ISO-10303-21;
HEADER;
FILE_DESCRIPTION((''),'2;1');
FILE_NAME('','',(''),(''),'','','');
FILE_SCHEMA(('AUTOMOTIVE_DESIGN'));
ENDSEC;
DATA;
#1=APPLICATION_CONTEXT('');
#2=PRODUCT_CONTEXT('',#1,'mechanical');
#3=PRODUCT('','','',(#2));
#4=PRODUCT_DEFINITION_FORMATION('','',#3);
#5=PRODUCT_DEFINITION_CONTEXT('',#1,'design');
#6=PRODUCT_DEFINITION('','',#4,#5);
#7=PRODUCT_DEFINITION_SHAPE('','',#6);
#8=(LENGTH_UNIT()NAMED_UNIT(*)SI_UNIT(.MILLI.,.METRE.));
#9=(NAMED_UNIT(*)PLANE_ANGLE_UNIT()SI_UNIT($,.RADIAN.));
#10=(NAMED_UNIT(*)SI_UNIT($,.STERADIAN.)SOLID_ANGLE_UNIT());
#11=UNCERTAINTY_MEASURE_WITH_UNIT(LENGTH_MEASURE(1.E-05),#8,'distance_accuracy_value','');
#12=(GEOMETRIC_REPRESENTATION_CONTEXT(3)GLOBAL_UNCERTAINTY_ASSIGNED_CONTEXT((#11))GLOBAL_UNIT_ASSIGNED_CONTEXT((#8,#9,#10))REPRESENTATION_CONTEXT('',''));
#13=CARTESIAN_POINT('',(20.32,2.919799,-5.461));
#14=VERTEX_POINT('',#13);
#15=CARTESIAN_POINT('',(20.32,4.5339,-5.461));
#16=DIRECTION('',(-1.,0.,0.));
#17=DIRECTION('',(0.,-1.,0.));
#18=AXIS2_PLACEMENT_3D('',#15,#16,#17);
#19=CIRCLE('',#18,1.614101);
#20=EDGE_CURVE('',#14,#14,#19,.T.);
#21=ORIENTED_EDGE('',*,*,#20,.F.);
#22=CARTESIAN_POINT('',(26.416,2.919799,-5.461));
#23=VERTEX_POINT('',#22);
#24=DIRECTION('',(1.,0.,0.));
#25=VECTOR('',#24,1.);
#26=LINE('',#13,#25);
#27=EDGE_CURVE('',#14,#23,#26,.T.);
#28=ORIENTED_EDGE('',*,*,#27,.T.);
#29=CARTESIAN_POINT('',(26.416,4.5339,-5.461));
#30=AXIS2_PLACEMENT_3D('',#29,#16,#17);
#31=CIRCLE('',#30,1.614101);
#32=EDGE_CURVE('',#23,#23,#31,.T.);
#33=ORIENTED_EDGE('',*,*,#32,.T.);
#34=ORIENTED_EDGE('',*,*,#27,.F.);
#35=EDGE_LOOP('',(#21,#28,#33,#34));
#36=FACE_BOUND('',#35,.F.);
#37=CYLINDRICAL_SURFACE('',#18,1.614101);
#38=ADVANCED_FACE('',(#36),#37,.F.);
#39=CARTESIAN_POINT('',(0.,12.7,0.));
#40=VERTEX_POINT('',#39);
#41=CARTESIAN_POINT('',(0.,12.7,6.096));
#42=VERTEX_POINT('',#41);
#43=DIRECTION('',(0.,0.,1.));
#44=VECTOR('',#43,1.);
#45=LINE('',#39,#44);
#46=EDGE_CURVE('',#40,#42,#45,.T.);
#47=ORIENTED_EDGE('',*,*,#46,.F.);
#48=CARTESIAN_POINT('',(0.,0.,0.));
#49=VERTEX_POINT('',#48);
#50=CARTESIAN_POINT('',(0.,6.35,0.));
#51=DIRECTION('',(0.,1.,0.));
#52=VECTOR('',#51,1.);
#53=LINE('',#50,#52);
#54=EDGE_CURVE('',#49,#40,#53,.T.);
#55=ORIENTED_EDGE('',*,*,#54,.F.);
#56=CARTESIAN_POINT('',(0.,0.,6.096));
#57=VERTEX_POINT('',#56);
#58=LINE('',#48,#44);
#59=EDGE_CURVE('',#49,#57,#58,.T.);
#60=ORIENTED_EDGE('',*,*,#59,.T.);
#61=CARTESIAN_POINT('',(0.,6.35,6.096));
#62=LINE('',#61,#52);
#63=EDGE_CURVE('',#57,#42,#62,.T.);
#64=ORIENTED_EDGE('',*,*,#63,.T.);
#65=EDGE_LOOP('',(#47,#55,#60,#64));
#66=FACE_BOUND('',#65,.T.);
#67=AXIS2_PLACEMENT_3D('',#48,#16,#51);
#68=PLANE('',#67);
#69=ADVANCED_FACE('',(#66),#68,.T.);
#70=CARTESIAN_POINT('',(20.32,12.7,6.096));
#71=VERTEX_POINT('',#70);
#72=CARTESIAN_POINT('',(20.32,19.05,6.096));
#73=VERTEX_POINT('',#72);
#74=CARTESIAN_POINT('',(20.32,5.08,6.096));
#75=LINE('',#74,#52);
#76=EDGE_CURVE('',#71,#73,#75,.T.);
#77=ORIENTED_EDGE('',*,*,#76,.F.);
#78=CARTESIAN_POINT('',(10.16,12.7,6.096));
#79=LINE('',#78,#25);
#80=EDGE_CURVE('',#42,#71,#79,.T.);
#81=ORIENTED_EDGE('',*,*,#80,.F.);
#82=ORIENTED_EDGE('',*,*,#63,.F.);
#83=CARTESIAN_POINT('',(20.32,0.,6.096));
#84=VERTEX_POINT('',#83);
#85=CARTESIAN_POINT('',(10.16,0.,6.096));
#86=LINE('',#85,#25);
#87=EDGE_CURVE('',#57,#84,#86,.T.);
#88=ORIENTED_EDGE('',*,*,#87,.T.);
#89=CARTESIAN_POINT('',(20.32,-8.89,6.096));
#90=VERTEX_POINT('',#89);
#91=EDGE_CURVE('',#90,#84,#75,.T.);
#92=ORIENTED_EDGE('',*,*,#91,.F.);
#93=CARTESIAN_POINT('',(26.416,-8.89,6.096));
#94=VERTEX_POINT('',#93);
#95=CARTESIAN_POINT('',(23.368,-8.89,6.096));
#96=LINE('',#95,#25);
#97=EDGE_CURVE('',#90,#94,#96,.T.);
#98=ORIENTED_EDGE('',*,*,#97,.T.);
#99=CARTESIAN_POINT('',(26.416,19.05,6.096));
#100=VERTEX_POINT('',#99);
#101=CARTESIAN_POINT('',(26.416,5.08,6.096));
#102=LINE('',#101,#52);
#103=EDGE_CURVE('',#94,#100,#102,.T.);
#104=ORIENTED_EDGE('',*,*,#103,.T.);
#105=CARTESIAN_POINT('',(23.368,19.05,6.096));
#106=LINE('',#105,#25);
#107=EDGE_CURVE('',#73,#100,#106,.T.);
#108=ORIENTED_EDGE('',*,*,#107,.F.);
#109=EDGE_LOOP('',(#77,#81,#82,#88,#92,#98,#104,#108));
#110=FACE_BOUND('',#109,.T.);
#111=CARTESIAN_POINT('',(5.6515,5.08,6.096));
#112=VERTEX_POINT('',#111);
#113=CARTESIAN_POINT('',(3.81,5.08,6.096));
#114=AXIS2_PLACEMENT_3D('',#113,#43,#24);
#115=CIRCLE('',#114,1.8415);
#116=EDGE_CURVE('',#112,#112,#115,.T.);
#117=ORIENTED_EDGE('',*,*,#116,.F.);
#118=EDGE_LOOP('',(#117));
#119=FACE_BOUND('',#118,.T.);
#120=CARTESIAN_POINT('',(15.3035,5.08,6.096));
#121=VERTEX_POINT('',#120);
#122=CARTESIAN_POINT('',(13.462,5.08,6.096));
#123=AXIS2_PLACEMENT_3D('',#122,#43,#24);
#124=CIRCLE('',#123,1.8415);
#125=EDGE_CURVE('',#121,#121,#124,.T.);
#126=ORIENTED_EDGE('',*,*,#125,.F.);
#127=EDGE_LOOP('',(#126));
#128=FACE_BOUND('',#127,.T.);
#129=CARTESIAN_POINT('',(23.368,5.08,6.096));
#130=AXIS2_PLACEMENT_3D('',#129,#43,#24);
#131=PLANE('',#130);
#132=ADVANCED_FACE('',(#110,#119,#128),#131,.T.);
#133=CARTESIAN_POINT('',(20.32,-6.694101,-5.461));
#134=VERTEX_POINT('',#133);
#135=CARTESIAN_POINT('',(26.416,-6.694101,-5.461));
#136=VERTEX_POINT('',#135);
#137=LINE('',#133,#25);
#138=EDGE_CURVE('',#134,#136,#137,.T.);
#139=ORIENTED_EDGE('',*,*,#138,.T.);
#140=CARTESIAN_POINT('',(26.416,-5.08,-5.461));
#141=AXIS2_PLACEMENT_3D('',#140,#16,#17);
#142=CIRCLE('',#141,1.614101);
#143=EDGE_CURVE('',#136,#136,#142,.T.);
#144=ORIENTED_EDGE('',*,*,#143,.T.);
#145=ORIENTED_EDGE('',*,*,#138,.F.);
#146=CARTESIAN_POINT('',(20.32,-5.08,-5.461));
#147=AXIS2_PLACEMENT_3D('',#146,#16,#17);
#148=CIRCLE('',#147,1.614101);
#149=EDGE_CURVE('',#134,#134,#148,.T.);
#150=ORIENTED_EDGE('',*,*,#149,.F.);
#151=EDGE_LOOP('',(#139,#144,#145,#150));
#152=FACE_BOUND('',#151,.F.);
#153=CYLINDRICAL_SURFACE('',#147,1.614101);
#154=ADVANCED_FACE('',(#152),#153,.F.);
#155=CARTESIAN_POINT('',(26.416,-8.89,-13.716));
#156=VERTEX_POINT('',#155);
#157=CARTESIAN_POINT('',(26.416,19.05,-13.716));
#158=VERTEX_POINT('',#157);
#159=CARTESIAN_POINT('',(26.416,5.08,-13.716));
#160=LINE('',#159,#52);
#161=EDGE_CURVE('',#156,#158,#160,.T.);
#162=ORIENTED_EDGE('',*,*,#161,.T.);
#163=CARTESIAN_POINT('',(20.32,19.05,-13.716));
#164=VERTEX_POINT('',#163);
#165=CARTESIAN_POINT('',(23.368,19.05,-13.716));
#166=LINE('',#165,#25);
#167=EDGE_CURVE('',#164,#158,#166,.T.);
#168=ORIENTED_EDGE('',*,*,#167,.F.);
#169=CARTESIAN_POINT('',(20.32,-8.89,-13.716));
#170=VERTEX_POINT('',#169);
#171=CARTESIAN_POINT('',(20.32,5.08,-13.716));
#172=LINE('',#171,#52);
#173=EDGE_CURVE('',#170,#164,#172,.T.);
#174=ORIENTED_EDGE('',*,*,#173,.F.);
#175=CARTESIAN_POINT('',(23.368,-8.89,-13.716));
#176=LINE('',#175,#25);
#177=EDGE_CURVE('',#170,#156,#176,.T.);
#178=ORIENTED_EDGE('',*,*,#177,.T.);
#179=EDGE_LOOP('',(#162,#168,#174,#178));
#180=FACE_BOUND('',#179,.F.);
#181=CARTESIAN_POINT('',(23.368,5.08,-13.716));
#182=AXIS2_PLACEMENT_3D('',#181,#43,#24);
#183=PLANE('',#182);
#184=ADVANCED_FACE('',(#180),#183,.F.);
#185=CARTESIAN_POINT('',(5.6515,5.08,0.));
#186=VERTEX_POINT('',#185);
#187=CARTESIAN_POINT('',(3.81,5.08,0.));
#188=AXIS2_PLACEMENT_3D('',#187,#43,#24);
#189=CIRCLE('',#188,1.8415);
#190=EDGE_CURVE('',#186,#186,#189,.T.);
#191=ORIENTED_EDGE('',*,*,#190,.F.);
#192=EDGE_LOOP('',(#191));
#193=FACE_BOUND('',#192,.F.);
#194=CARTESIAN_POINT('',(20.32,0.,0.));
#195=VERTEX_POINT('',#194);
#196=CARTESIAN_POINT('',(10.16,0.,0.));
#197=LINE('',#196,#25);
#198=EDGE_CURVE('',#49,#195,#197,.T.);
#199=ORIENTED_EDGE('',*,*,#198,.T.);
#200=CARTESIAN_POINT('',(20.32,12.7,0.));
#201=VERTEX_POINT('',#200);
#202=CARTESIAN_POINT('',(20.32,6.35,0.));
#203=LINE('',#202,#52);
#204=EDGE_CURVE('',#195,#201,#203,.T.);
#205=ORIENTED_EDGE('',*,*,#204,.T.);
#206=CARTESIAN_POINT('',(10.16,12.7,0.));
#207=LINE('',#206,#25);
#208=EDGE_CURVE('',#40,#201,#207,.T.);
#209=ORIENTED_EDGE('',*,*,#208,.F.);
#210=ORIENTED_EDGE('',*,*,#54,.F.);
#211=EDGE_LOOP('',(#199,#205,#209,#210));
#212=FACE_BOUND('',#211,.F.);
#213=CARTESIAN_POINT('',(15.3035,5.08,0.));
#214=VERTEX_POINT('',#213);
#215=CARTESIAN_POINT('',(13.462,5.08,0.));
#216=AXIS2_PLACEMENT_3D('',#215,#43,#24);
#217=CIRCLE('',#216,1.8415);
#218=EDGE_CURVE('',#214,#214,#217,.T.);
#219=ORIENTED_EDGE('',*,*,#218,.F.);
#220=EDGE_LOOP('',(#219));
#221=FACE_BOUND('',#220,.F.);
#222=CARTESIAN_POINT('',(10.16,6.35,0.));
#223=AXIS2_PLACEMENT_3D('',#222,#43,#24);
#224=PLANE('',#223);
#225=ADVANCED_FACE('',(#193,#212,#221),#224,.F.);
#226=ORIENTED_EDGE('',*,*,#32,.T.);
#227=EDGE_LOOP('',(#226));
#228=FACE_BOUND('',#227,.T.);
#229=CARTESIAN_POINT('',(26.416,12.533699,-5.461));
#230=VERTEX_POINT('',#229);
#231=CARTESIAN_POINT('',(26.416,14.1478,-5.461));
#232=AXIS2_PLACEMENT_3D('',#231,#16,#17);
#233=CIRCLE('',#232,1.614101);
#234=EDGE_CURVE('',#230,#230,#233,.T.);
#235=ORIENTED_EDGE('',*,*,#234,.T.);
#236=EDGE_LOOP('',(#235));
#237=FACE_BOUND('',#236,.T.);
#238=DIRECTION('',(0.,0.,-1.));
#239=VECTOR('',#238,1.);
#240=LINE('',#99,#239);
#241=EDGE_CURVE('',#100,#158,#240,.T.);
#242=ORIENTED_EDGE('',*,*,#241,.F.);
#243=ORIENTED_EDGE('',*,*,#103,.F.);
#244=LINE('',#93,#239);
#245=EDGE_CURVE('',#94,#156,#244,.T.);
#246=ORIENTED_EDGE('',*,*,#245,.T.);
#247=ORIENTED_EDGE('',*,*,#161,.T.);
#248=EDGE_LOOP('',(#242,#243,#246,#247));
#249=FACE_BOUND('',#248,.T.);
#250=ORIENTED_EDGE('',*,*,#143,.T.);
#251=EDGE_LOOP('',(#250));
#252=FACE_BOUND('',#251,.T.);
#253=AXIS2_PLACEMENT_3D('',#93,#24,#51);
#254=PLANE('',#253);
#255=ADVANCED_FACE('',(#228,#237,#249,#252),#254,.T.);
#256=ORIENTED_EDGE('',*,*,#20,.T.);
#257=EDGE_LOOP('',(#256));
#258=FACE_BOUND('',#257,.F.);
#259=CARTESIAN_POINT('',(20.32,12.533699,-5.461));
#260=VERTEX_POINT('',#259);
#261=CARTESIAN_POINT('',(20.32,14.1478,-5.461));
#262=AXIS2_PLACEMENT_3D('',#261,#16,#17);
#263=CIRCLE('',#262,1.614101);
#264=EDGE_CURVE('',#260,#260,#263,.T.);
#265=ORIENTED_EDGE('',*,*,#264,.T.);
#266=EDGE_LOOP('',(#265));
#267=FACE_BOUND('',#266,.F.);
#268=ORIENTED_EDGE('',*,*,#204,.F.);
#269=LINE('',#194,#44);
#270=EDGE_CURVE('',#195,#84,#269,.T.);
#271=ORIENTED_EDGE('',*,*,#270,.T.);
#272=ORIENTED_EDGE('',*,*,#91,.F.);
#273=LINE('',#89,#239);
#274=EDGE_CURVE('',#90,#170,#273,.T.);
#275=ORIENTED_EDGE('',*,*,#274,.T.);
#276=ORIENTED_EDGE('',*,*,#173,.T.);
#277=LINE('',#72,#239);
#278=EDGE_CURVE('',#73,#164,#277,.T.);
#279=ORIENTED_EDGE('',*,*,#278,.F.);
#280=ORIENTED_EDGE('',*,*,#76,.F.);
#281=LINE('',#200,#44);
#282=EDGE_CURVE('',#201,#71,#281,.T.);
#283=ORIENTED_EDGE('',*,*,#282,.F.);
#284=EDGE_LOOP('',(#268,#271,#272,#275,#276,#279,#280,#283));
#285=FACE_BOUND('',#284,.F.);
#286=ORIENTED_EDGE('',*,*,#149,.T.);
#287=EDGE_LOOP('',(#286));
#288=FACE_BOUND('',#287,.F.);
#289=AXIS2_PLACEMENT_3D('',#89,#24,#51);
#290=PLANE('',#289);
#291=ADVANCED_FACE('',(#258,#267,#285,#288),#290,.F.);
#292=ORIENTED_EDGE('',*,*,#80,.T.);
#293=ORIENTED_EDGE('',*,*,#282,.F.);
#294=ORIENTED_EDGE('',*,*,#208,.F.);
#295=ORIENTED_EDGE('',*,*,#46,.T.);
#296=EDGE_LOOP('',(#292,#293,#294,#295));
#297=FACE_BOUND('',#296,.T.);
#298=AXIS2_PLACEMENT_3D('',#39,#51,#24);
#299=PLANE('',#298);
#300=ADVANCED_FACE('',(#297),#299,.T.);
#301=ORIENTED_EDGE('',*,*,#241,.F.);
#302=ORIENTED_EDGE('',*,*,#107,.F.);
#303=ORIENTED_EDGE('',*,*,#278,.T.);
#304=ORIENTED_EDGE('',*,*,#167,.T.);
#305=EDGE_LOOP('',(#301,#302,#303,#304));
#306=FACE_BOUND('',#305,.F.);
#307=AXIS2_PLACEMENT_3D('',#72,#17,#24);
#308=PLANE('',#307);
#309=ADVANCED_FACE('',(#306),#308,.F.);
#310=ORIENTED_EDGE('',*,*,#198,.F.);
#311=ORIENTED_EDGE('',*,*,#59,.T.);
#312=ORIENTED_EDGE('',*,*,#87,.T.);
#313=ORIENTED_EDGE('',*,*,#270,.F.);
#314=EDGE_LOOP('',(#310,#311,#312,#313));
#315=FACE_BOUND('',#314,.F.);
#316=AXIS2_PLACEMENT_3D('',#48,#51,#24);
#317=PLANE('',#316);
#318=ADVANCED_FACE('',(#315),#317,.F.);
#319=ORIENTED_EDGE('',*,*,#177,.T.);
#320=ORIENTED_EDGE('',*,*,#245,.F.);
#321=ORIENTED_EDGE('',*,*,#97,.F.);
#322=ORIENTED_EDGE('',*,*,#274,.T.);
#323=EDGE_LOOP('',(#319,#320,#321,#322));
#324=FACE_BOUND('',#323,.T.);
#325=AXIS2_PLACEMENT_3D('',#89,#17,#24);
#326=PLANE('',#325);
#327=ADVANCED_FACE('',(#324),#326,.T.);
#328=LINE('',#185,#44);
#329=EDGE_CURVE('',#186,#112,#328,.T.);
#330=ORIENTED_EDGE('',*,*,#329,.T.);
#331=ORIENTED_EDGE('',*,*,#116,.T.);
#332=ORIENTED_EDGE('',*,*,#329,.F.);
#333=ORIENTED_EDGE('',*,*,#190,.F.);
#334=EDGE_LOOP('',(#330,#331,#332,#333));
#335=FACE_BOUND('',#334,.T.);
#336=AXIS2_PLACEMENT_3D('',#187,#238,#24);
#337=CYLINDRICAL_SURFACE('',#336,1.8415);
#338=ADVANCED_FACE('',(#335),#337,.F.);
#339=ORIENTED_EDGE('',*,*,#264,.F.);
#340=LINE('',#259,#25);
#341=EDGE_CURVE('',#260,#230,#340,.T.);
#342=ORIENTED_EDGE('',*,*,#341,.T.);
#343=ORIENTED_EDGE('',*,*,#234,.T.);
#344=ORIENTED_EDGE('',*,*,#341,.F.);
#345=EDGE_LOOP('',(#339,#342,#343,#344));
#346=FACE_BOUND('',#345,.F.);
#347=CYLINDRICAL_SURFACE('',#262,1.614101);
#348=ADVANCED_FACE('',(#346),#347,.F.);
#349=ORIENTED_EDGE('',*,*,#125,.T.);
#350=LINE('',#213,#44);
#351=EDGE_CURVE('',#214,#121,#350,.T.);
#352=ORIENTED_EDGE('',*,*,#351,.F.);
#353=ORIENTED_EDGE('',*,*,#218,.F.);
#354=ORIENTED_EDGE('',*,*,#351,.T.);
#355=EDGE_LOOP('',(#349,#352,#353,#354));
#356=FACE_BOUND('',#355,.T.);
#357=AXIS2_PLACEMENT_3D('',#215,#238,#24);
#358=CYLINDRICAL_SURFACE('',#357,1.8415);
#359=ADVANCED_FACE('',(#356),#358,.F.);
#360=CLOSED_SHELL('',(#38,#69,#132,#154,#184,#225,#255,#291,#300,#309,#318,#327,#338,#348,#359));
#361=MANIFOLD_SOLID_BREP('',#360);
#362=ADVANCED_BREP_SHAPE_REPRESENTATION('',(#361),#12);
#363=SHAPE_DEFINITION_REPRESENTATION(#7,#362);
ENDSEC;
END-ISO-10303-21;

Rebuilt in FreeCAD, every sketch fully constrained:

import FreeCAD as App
import Part
import Sketcher
Q = App.Units.Quantity


def add_polygon(sketch, points):
    """Adds a closed chain of lines whose ends are joined by coincident constraints."""
    first, n = sketch.GeometryCount, len(points)
    for a, b in zip(points, points[1:] + points[:1]):
        sketch.addGeometry(Part.LineSegment(App.Vector(*a, 0), App.Vector(*b, 0)), False)
    for i in range(n):
        sketch.addConstraint(Sketcher.Constraint("Coincident", first + i, 2, first + (i + 1) % n, 1))

doc = App.newDocument("Part")
body = doc.addObject("PartDesign::Body", "Body")

sketch1 = body.newObject("Sketcher::SketchObject", "Sketch")
sketch1.AttachmentSupport = (doc.getObject("XY_Plane"), [""])
sketch1.MapMode = "FlatFace"
add_polygon(sketch1, [(0, 12.7), (0, 0), (20.3, 0), (20.3, 12.7)])
sketch1.addGeometry(Part.Circle(App.Vector(3.8, 5.1, 0), App.Vector(0, 0, 1), 1.8), False)
sketch1.addGeometry(Part.Circle(App.Vector(13.5, 5.1, 0), App.Vector(0, 0, 1), 1.8), False)
sketch1.addConstraint(Sketcher.Constraint("Vertical", 0))
sketch1.addConstraint(Sketcher.Constraint("Horizontal", 1))
sketch1.addConstraint(Sketcher.Constraint("Vertical", 2))
sketch1.addConstraint(Sketcher.Constraint("Horizontal", 3))
sketch1.addConstraint(Sketcher.Constraint("Coincident", 0, 2, -1, 1))
sketch1.addConstraint(Sketcher.Constraint("Equal", 4, 5))
sketch1.addConstraint(Sketcher.Constraint("Horizontal", 4, 3, 5, 3))
sketch1.addConstraint(Sketcher.Constraint("Diameter", 4, Q("0.145 in")))
sketch1.addConstraint(Sketcher.Constraint("DistanceX", 1, 1, 1, 2, Q("0.8 in")))
sketch1.addConstraint(Sketcher.Constraint("DistanceY", 0, 2, 0, 1, Q("0.5 in")))
sketch1.addConstraint(Sketcher.Constraint("DistanceY", -1, 1, 4, 3, Q("0.2 in")))
sketch1.addConstraint(Sketcher.Constraint("DistanceX", -1, 1, 4, 3, Q("0.15 in")))
sketch1.addConstraint(Sketcher.Constraint("DistanceX", -1, 1, 5, 3, Q("0.53 in")))
pad1 = body.newObject("PartDesign::Pad", "Pad")
pad1.Profile = sketch1
pad1.Length = Q("0.24 in")

sketch2 = body.newObject("Sketcher::SketchObject", "Sketch001")
sketch2.AttachmentSupport = (doc.getObject("XY_Plane"), [""])
sketch2.MapMode = "FlatFace"
sketch2.AttachmentOffset = App.Placement(App.Vector(0, 0, 0.24 * 25.4), App.Rotation())
add_polygon(sketch2, [(20, 19), (20, -9), (26, -9), (26, 19)])
sketch2.addConstraint(Sketcher.Constraint("Vertical", 0))
sketch2.addConstraint(Sketcher.Constraint("Horizontal", 1))
sketch2.addConstraint(Sketcher.Constraint("Vertical", 2))
sketch2.addConstraint(Sketcher.Constraint("Horizontal", 3))
sketch2.addConstraint(Sketcher.Constraint("DistanceY", 0, 2, 0, 1, Q("1.1 in")))
sketch2.addConstraint(Sketcher.Constraint("DistanceX", 1, 1, 1, 2, Q("0.24 in")))
sketch2.addConstraint(Sketcher.Constraint("DistanceX", -1, 1, 0, 2, Q("0.8 in")))
sketch2.addConstraint(Sketcher.Constraint("DistanceY", 0, 2, -1, 1, Q("0.35 in")))
pad2 = body.newObject("PartDesign::Pad", "Pad001")
pad2.Profile = sketch2
pad2.Length = Q("0.78 in")
pad2.Reversed = True

sketch3 = body.newObject("Sketcher::SketchObject", "Sketch002")
sketch3.AttachmentSupport = (doc.getObject("YZ_Plane"), [""])
sketch3.MapMode = "FlatFace"
sketch3.AttachmentOffset = App.Placement(App.Vector(0, 0, 0.8 * 25.4), App.Rotation())
sketch3.addGeometry(Part.Circle(App.Vector(-5.1, -5.5, 0), App.Vector(0, 0, 1), 1.6), False)
sketch3.addGeometry(Part.Circle(App.Vector(4.5, -5.5, 0), App.Vector(0, 0, 1), 1.6), False)
sketch3.addGeometry(Part.Circle(App.Vector(14.1, -5.5, 0), App.Vector(0, 0, 1), 1.6), False)
sketch3.addConstraint(Sketcher.Constraint("Equal", 0, 1))
sketch3.addConstraint(Sketcher.Constraint("Equal", 1, 2))
sketch3.addConstraint(Sketcher.Constraint("Horizontal", 0, 3, 1, 3))
sketch3.addConstraint(Sketcher.Constraint("Horizontal", 1, 3, 2, 3))
sketch3.addConstraint(Sketcher.Constraint("DistanceX", 0, 3, -1, 1, Q("0.2 in")))
sketch3.addConstraint(Sketcher.Constraint("Diameter", 0, 3.228202))
sketch3.addConstraint(Sketcher.Constraint("DistanceY", 0, 3, -1, 1, Q("0.215 in")))
sketch3.addConstraint(Sketcher.Constraint("DistanceX", -1, 1, 2, 3, Q("0.557 in")))
sketch3.addConstraint(Sketcher.Constraint("DistanceX", -1, 1, 1, 3, Q("0.1785 in")))
pocket1 = body.newObject("PartDesign::Pocket", "Pocket")
pocket1.Profile = sketch3
pocket1.Length = Q("1 in")
pocket1.Reversed = True

doc.recompute()
